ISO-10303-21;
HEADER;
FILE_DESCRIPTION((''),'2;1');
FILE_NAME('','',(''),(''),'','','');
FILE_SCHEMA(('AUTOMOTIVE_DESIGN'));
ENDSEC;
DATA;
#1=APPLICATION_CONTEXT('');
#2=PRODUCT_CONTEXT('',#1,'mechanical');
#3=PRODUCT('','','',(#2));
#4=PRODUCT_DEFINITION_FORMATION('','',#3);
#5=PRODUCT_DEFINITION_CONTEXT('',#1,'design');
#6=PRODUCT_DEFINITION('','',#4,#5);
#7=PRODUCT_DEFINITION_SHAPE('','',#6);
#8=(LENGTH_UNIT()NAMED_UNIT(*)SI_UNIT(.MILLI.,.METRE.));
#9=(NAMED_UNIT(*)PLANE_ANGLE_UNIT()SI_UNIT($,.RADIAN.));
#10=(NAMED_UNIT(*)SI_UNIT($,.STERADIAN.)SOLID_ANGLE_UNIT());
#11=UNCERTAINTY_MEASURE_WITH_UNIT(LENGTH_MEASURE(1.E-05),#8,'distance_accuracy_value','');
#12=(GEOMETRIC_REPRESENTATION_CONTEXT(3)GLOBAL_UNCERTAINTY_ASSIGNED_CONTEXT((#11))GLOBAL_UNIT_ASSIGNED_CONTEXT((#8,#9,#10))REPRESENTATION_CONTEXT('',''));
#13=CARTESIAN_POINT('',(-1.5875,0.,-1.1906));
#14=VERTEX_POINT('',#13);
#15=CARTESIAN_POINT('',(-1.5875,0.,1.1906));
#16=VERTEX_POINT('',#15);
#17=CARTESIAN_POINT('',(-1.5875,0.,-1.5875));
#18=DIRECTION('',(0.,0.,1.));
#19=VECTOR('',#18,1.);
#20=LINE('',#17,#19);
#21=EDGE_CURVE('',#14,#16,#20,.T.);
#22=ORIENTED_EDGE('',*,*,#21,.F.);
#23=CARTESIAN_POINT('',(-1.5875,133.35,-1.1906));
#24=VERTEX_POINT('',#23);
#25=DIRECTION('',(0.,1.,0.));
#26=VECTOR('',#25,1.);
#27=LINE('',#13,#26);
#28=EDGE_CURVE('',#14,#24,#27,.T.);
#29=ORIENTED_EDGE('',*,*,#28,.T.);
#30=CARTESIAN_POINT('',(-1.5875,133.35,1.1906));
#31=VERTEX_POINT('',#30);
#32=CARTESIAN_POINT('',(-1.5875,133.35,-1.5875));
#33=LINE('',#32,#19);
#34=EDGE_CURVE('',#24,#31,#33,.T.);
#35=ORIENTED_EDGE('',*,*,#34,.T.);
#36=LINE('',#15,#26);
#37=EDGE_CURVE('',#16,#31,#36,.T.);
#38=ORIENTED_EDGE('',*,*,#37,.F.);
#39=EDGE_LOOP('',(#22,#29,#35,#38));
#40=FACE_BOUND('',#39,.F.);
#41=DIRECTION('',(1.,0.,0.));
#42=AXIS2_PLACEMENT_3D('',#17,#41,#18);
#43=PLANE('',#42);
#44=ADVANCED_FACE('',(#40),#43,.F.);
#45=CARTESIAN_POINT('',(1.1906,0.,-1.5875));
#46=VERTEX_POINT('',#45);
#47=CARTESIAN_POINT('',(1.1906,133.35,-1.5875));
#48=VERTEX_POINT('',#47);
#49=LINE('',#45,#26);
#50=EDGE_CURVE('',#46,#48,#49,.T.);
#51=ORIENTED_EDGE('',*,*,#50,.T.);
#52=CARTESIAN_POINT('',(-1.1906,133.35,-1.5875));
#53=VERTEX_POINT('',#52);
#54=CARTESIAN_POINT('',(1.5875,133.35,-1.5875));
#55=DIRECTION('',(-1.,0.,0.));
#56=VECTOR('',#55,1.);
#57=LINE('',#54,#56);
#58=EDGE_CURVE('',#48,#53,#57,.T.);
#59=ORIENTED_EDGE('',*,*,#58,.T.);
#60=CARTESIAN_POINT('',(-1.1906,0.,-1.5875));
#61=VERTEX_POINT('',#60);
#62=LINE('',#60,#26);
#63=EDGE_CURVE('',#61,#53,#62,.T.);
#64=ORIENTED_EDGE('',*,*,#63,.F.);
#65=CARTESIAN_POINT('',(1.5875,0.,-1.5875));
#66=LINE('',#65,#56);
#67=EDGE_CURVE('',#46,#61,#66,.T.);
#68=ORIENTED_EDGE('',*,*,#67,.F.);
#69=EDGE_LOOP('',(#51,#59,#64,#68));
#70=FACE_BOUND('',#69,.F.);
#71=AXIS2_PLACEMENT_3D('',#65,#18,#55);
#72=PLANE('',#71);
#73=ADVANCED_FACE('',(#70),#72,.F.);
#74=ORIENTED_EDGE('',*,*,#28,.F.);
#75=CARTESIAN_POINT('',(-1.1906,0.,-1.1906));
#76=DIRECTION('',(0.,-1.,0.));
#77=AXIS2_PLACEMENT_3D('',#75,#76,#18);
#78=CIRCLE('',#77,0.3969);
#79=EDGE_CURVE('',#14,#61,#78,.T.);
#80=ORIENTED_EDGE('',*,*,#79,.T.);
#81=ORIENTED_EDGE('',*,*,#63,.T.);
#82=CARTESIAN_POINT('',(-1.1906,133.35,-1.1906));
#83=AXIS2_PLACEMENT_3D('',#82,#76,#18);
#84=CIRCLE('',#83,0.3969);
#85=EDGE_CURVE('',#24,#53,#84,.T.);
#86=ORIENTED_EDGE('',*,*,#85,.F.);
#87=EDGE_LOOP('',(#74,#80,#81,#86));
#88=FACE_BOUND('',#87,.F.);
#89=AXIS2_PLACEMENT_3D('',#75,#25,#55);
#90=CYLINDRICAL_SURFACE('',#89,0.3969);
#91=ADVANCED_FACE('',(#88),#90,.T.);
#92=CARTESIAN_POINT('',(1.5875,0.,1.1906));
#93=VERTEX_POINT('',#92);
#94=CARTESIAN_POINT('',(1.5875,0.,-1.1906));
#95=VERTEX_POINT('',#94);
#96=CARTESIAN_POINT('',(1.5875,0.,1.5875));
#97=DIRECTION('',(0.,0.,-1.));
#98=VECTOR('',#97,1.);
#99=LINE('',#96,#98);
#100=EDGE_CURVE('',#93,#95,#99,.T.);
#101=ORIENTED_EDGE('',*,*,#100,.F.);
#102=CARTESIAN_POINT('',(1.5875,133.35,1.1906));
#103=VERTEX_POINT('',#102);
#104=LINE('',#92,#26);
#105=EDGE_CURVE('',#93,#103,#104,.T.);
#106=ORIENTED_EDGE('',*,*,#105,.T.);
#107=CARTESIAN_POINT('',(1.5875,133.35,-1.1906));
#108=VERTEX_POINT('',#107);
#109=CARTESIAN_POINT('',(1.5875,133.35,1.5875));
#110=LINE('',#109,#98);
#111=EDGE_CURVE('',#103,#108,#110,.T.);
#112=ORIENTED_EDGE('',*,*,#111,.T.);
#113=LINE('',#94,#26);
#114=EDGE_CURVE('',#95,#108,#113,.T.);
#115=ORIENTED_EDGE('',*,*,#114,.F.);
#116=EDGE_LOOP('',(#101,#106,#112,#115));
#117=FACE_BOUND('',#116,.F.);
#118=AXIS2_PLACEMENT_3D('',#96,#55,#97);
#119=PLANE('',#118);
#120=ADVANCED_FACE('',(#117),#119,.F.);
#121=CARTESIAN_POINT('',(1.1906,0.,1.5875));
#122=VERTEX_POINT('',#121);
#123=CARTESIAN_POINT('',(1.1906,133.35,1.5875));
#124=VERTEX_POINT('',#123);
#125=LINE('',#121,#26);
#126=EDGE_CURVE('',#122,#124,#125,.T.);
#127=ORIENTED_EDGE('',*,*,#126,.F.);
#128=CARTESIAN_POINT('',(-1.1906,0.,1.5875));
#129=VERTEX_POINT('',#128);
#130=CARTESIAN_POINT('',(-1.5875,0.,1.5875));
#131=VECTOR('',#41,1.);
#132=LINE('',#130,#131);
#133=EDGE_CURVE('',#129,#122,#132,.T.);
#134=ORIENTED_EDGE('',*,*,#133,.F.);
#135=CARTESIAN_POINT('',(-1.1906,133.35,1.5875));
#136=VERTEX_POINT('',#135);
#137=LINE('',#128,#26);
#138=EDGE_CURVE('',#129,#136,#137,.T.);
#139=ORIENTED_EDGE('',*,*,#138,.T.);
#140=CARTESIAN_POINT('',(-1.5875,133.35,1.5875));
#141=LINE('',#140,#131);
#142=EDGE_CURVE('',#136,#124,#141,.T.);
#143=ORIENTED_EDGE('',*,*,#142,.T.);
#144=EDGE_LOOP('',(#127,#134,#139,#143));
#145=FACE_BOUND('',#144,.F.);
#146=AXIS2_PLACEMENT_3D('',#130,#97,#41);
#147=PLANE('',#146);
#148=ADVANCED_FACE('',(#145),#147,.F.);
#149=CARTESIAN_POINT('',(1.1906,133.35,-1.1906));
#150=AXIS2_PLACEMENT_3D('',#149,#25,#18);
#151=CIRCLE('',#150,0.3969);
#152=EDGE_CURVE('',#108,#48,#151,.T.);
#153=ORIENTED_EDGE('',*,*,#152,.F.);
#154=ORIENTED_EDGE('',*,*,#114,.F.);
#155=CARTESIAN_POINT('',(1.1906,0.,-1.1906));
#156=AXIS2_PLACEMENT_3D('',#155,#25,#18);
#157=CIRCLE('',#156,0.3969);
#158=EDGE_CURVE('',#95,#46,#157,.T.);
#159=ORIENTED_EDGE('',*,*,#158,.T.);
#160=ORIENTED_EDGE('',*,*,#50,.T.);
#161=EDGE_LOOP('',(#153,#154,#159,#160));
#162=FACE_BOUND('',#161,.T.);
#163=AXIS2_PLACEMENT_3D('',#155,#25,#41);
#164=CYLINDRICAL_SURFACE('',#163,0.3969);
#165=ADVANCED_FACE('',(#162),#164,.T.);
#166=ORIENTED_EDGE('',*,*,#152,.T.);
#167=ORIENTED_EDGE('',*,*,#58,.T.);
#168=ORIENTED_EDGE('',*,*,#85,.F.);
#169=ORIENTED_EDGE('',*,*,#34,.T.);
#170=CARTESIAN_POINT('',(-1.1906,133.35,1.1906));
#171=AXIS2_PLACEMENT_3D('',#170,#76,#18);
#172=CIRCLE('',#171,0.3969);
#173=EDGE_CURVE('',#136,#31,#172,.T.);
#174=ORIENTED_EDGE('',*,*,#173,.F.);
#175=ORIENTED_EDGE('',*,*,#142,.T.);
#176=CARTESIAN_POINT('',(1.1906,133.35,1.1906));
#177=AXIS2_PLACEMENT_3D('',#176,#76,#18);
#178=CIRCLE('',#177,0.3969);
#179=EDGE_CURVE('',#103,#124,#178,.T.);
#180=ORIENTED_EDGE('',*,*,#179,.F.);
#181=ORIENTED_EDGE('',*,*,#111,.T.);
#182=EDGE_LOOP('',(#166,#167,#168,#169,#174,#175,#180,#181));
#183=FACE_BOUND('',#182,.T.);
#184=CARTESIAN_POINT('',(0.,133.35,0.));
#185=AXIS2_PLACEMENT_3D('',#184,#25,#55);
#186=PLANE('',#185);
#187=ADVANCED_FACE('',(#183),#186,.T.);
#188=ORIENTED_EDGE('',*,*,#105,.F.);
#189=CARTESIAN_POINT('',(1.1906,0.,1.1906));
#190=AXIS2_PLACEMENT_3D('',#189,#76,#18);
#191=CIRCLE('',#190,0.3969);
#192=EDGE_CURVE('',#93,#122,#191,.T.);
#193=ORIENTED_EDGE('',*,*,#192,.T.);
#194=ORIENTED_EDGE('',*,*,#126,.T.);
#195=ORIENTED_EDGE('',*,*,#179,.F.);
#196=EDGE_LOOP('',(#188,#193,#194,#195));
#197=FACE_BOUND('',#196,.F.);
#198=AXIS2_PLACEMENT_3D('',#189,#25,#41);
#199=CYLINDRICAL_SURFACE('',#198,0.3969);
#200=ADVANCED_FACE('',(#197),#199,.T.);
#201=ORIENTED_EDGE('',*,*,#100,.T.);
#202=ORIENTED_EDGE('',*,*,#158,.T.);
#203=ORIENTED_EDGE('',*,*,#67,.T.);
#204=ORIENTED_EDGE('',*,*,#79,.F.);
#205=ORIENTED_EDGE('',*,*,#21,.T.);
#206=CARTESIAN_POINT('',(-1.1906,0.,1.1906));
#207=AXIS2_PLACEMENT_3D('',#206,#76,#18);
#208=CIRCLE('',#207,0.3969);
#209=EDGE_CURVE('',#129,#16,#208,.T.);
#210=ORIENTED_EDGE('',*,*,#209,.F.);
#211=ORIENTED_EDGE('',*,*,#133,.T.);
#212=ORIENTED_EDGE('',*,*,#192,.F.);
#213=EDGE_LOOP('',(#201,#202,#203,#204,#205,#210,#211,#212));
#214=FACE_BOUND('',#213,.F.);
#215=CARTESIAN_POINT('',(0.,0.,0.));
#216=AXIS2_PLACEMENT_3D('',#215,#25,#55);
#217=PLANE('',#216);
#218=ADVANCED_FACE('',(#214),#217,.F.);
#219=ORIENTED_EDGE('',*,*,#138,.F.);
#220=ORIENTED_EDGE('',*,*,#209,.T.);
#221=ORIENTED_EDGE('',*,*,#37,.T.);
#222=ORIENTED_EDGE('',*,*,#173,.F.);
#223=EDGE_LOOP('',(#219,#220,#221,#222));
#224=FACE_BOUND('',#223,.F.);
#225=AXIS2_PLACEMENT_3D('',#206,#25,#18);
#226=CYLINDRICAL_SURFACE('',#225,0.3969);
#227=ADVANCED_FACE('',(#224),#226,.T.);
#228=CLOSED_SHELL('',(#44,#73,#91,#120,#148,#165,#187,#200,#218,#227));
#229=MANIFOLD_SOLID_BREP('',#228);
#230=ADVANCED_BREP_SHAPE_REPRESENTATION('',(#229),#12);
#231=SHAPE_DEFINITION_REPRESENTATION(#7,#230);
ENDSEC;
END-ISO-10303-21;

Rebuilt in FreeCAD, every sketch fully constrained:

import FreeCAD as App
import Part
import Sketcher

V = App.Vector
Q = App.Units.Quantity


def edges_at(feature, points):
    """Names of the edges that pass closest to the given points."""
    edges = feature.Shape.Edges
    near = lambda p: min(range(len(edges)), key=lambda i: edges[i].distToShape(Part.Vertex(*p))[0])
    return sorted({f"Edge{near(p) + 1}" for p in points})

doc = App.newDocument("Part")
body = doc.addObject("PartDesign::Body", "Body")

# Sketch on XZ plane
sketch1 = body.newObject("Sketcher::SketchObject", "Sketch")
sketch1.AttachmentSupport = (doc.getObject("XZ_Plane"), [""])
sketch1.MapMode = "FlatFace"
sketch1.addGeometry([
    Part.LineSegment(V(1.5875, 1.5875, 0), V(1.5875, -1.5875, 0)),
    Part.LineSegment(V(1.5875, -1.5875, 0), V(-1.5875, -1.5875, 0)),
    Part.LineSegment(V(-1.5875, -1.5875, 0), V(-1.5875, 1.5875, 0)),
    Part.LineSegment(V(-1.5875, 1.5875, 0), V(1.5875, 1.5875, 0)),
], False)
sketch1.addConstraint([
    Sketcher.Constraint("Coincident", 0, 2, 1, 1),
    Sketcher.Constraint("Coincident", 1, 2, 2, 1),
    Sketcher.Constraint("Coincident", 2, 2, 3, 1),
    Sketcher.Constraint("Coincident", 3, 2, 0, 1),
    Sketcher.Constraint("Vertical", 0),
    Sketcher.Constraint("Horizontal", 1),
    Sketcher.Constraint("Vertical", 2),
    Sketcher.Constraint("Horizontal", 3),
    Sketcher.Constraint("Symmetric", 0, 2, 2, 2, -1, 1),
    Sketcher.Constraint("Equal", 3, 0),
    Sketcher.Constraint("DistanceX", 1, 2, 1, 1, Q("0.125 in")),
])
pad1 = body.newObject("PartDesign::Pad", "Pad")
pad1.Profile = sketch1
pad1.Length = Q("5.25 in")
pad1.Reversed = True
doc.recompute()

fillet = body.newObject("PartDesign::Fillet", "Fillet")
fillet.Base = (pad1, edges_at(pad1, [
    (1.587, 66.675, -1.587),
    (1.587, 66.675, 1.587),
    (-1.587, 66.675, -1.587),
    (-1.587, 66.675, 1.587),
]))
fillet.Radius = Q("0.015626 in")

doc.recompute()
